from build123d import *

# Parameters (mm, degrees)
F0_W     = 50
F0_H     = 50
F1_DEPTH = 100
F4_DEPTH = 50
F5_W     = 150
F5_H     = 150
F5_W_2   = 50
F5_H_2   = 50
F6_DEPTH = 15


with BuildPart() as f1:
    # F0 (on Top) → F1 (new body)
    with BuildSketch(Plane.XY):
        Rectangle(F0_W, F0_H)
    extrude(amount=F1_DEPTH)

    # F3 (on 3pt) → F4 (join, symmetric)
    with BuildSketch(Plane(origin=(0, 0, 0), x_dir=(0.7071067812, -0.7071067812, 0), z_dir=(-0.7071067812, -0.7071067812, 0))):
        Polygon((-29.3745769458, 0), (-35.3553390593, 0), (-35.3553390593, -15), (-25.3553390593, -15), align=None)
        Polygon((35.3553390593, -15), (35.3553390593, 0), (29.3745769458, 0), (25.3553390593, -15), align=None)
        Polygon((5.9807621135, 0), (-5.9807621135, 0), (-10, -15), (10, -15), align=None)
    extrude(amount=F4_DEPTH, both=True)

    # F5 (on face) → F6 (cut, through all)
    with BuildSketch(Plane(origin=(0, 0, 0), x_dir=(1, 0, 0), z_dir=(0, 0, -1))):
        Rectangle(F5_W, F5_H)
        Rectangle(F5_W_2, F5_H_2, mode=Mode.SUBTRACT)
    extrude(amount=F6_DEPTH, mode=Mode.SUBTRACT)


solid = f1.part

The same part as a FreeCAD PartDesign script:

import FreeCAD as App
import Part
import Sketcher
from FreeCAD import Vector
Q = App.Units.Quantity

doc = App.newDocument("Part")
params = doc.addObject("Spreadsheet::Sheet", "Params")
for row, (alias, value) in enumerate([
    ("sketch1_width", "50 mm"),
    ("pad1_length", "100 mm"),
    ("sketch2_width", "10 mm"),
    ("sketch2_width2", "20 mm"),
    ("sketch2_height", "15 mm"),
    ("pad2_length", "100 mm"),
    ("sketch3_width", "150 mm"),
    ("sketch3_width2", "50 mm"),
], start=1):
    params.set(f"A{row}", alias)
    params.set(f"B{row}", "=" + value)
    params.setAlias(f"B{row}", alias)

body = doc.addObject("PartDesign::Body", "Body")

# Sketch on XY plane
sketch1 = body.newObject("Sketcher::SketchObject", "Sketch")
sketch1.AttachmentSupport = (doc.getObject("XY_Plane"), [""])
sketch1.MapMode = "FlatFace"
sketch1.addGeometry([
    Part.LineSegment(Vector(-25, 25, 0), Vector(-25, -25, 0)),
    Part.LineSegment(Vector(-25, -25, 0), Vector(25, -25, 0)),
    Part.LineSegment(Vector(25, -25, 0), Vector(25, 25, 0)),
    Part.LineSegment(Vector(25, 25, 0), Vector(-25, 25, 0)),
], False)
sketch1.addConstraint([
    Sketcher.Constraint("Coincident", 0, 2, 1, 1),
    Sketcher.Constraint("Coincident", 1, 2, 2, 1),
    Sketcher.Constraint("Coincident", 2, 2, 3, 1),
    Sketcher.Constraint("Coincident", 3, 2, 0, 1),
    Sketcher.Constraint("Vertical", 0),
    Sketcher.Constraint("Horizontal", 1),
    Sketcher.Constraint("Vertical", 2),
    Sketcher.Constraint("Horizontal", 3),
    Sketcher.Constraint("Symmetric", 0, 2, 2, 2, -1, 1),
    Sketcher.Constraint("Equal", 3, 0),
    Sketcher.Constraint("DistanceX", 1, 1, 1, 2, Q("50 mm")),
])
sketch1.setExpression("Constraints[10]", "Params.sketch1_width")
pad1 = body.newObject("PartDesign::Pad", "Pad")
pad1.Profile = sketch1
pad1.setExpression("Length", "Params.pad1_length")

# Sketch on an angled plane
sketch2 = body.newObject("Sketcher::SketchObject", "Sketch001")
sketch2.Placement = App.Placement(Vector(0, 0, 0), App.Rotation(Vector(0.707106781, -0.707106781, 0), Vector(0, 0, 0.999999999), Vector(-0.707106781, -0.707106781, 0), "ZXY"))
sketch2.addGeometry([
    Part.LineSegment(Vector(-29, 0, 0), Vector(-35, 0, 0)),  # 0
    Part.LineSegment(Vector(-35, 0, 0), Vector(-35, -15, 0)),  # 1
    Part.LineSegment(Vector(-35, -15, 0), Vector(-25, -15, 0)),  # 2
    Part.LineSegment(Vector(-25, -15, 0), Vector(-29, 0, 0)),  # 3
    Part.LineSegment(Vector(35, -15, 0), Vector(35, 0, 0)),  # 4
    Part.LineSegment(Vector(35, 0, 0), Vector(29, 0, 0)),  # 5
    Part.LineSegment(Vector(29, 0, 0), Vector(25, -15, 0)),  # 6
    Part.LineSegment(Vector(25, -15, 0), Vector(35, -15, 0)),  # 7
    Part.LineSegment(Vector(6, 0, 0), Vector(-6, 0, 0)),  # 8
    Part.LineSegment(Vector(-6, 0, 0), Vector(-10, -15, 0)),  # 9
    Part.LineSegment(Vector(-10, -15, 0), Vector(10, -15, 0)),  # 10
    Part.LineSegment(Vector(10, -15, 0), Vector(6, 0, 0)),  # 11
], False)
sketch2.addConstraint([
    Sketcher.Constraint("Coincident", 0, 2, 1, 1),
    Sketcher.Constraint("Coincident", 1, 2, 2, 1),
    Sketcher.Constraint("Coincident", 2, 2, 3, 1),
    Sketcher.Constraint("Coincident", 3, 2, 0, 1),
    Sketcher.Constraint("Coincident", 4, 2, 5, 1),
    Sketcher.Constraint("Coincident", 5, 2, 6, 1),
    Sketcher.Constraint("Coincident", 6, 2, 7, 1),
    Sketcher.Constraint("Coincident", 7, 2, 4, 1),
    Sketcher.Constraint("Coincident", 8, 2, 9, 1),
    Sketcher.Constraint("Coincident", 9, 2, 10, 1),
    Sketcher.Constraint("Coincident", 10, 2, 11, 1),
    Sketcher.Constraint("Coincident", 11, 2, 8, 1),
    Sketcher.Constraint("Horizontal", 0),
    Sketcher.Constraint("Vertical", 1),
    Sketcher.Constraint("Horizontal", 2),
    Sketcher.Constraint("Vertical", 4),
    Sketcher.Constraint("Horizontal", 5),
    Sketcher.Constraint("Horizontal", 7),
    Sketcher.Constraint("Horizontal", 8),
    Sketcher.Constraint("Horizontal", 10),
    Sketcher.Constraint("Symmetric", 0, 2, 4, 2, -1, 1),
    Sketcher.Constraint("Symmetric", 8, 2, 11, 2, -1, 1),
    Sketcher.Constraint("Symmetric", 3, 2, 5, 2, -2),
    Sketcher.Constraint("Symmetric", 2, 2, 6, 2, -2),
    Sketcher.Constraint("Parallel", 6, 9),
    Sketcher.Constraint("Parallel", 3, 11),
    Sketcher.Constraint("Horizontal", 7, 2, 9, 2),
    Sketcher.Constraint("DistanceX", 2, 1, 2, 2, Q("10 mm")),
    Sketcher.Constraint("DistanceX", 10, 1, 10, 2, Q("20 mm")),
    Sketcher.Constraint("DistanceY", 1, 2, 1, 1, Q("15 mm")),
    Sketcher.Constraint("Angle", 3, Q("105 deg")),
    Sketcher.Constraint("DistanceX", 8, 2, 6, 2, Q("31.336101 mm")),
])
sketch2.setExpression("Constraints[27]", "Params.sketch2_width")
sketch2.setExpression("Constraints[28]", "Params.sketch2_width2")
sketch2.setExpression("Constraints[29]", "Params.sketch2_height")
pad2 = body.newObject("PartDesign::Pad", "Pad001")
pad2.Profile = sketch2
pad2.setExpression("Length", "Params.pad2_length")
pad2.Midplane = True

# Sketch on XY plane
sketch3 = body.newObject("Sketcher::SketchObject", "Sketch002")
sketch3.AttachmentSupport = (doc.getObject("XY_Plane"), [""])
sketch3.MapMode = "FlatFace"
sketch3.addGeometry([
    Part.LineSegment(Vector(-75, -75, 0), Vector(-75, 75, 0)),  # 0
    Part.LineSegment(Vector(-75, 75, 0), Vector(75, 75, 0)),  # 1
    Part.LineSegment(Vector(75, 75, 0), Vector(75, -75, 0)),  # 2
    Part.LineSegment(Vector(75, -75, 0), Vector(-75, -75, 0)),  # 3
    Part.LineSegment(Vector(25, 25, 0), Vector(-25, 25, 0)),  # 4
    Part.LineSegment(Vector(-25, 25, 0), Vector(-25, -25, 0)),  # 5
    Part.LineSegment(Vector(-25, -25, 0), Vector(25, -25, 0)),  # 6
    Part.LineSegment(Vector(25, -25, 0), Vector(25, 25, 0)),  # 7
], False)
sketch3.addConstraint([
    Sketcher.Constraint("Coincident", 0, 2, 1, 1),
    Sketcher.Constraint("Coincident", 1, 2, 2, 1),
    Sketcher.Constraint("Coincident", 2, 2, 3, 1),
    Sketcher.Constraint("Coincident", 3, 2, 0, 1),
    Sketcher.Constraint("Coincident", 4, 2, 5, 1),
    Sketcher.Constraint("Coincident", 5, 2, 6, 1),
    Sketcher.Constraint("Coincident", 6, 2, 7, 1),
    Sketcher.Constraint("Coincident", 7, 2, 4, 1),
    Sketcher.Constraint("Vertical", 0),
    Sketcher.Constraint("Horizontal", 1),
    Sketcher.Constraint("Vertical", 2),
    Sketcher.Constraint("Horizontal", 3),
    Sketcher.Constraint("Horizontal", 4),
    Sketcher.Constraint("Vertical", 5),
    Sketcher.Constraint("Horizontal", 6),
    Sketcher.Constraint("Vertical", 7),
    Sketcher.Constraint("Symmetric", 0, 2, 2, 2, -1, 1),
    Sketcher.Constraint("Symmetric", 4, 2, 6, 2, -1, 1),
    Sketcher.Constraint("Equal", 3, 0),
    Sketcher.Constraint("Equal", 6, 5),
    Sketcher.Constraint("DistanceX", 1, 1, 1, 2, Q("150 mm")),
    Sketcher.Constraint("DistanceX", 4, 2, 4, 1, Q("50 mm")),
])
sketch3.setExpression("Constraints[20]", "Params.sketch3_width")
sketch3.setExpression("Constraints[21]", "Params.sketch3_width2")
pocket1 = body.newObject("PartDesign::Pocket", "Pocket")
pocket1.Profile = sketch3
pocket1.Type = "ThroughAll"

doc.recompute()
